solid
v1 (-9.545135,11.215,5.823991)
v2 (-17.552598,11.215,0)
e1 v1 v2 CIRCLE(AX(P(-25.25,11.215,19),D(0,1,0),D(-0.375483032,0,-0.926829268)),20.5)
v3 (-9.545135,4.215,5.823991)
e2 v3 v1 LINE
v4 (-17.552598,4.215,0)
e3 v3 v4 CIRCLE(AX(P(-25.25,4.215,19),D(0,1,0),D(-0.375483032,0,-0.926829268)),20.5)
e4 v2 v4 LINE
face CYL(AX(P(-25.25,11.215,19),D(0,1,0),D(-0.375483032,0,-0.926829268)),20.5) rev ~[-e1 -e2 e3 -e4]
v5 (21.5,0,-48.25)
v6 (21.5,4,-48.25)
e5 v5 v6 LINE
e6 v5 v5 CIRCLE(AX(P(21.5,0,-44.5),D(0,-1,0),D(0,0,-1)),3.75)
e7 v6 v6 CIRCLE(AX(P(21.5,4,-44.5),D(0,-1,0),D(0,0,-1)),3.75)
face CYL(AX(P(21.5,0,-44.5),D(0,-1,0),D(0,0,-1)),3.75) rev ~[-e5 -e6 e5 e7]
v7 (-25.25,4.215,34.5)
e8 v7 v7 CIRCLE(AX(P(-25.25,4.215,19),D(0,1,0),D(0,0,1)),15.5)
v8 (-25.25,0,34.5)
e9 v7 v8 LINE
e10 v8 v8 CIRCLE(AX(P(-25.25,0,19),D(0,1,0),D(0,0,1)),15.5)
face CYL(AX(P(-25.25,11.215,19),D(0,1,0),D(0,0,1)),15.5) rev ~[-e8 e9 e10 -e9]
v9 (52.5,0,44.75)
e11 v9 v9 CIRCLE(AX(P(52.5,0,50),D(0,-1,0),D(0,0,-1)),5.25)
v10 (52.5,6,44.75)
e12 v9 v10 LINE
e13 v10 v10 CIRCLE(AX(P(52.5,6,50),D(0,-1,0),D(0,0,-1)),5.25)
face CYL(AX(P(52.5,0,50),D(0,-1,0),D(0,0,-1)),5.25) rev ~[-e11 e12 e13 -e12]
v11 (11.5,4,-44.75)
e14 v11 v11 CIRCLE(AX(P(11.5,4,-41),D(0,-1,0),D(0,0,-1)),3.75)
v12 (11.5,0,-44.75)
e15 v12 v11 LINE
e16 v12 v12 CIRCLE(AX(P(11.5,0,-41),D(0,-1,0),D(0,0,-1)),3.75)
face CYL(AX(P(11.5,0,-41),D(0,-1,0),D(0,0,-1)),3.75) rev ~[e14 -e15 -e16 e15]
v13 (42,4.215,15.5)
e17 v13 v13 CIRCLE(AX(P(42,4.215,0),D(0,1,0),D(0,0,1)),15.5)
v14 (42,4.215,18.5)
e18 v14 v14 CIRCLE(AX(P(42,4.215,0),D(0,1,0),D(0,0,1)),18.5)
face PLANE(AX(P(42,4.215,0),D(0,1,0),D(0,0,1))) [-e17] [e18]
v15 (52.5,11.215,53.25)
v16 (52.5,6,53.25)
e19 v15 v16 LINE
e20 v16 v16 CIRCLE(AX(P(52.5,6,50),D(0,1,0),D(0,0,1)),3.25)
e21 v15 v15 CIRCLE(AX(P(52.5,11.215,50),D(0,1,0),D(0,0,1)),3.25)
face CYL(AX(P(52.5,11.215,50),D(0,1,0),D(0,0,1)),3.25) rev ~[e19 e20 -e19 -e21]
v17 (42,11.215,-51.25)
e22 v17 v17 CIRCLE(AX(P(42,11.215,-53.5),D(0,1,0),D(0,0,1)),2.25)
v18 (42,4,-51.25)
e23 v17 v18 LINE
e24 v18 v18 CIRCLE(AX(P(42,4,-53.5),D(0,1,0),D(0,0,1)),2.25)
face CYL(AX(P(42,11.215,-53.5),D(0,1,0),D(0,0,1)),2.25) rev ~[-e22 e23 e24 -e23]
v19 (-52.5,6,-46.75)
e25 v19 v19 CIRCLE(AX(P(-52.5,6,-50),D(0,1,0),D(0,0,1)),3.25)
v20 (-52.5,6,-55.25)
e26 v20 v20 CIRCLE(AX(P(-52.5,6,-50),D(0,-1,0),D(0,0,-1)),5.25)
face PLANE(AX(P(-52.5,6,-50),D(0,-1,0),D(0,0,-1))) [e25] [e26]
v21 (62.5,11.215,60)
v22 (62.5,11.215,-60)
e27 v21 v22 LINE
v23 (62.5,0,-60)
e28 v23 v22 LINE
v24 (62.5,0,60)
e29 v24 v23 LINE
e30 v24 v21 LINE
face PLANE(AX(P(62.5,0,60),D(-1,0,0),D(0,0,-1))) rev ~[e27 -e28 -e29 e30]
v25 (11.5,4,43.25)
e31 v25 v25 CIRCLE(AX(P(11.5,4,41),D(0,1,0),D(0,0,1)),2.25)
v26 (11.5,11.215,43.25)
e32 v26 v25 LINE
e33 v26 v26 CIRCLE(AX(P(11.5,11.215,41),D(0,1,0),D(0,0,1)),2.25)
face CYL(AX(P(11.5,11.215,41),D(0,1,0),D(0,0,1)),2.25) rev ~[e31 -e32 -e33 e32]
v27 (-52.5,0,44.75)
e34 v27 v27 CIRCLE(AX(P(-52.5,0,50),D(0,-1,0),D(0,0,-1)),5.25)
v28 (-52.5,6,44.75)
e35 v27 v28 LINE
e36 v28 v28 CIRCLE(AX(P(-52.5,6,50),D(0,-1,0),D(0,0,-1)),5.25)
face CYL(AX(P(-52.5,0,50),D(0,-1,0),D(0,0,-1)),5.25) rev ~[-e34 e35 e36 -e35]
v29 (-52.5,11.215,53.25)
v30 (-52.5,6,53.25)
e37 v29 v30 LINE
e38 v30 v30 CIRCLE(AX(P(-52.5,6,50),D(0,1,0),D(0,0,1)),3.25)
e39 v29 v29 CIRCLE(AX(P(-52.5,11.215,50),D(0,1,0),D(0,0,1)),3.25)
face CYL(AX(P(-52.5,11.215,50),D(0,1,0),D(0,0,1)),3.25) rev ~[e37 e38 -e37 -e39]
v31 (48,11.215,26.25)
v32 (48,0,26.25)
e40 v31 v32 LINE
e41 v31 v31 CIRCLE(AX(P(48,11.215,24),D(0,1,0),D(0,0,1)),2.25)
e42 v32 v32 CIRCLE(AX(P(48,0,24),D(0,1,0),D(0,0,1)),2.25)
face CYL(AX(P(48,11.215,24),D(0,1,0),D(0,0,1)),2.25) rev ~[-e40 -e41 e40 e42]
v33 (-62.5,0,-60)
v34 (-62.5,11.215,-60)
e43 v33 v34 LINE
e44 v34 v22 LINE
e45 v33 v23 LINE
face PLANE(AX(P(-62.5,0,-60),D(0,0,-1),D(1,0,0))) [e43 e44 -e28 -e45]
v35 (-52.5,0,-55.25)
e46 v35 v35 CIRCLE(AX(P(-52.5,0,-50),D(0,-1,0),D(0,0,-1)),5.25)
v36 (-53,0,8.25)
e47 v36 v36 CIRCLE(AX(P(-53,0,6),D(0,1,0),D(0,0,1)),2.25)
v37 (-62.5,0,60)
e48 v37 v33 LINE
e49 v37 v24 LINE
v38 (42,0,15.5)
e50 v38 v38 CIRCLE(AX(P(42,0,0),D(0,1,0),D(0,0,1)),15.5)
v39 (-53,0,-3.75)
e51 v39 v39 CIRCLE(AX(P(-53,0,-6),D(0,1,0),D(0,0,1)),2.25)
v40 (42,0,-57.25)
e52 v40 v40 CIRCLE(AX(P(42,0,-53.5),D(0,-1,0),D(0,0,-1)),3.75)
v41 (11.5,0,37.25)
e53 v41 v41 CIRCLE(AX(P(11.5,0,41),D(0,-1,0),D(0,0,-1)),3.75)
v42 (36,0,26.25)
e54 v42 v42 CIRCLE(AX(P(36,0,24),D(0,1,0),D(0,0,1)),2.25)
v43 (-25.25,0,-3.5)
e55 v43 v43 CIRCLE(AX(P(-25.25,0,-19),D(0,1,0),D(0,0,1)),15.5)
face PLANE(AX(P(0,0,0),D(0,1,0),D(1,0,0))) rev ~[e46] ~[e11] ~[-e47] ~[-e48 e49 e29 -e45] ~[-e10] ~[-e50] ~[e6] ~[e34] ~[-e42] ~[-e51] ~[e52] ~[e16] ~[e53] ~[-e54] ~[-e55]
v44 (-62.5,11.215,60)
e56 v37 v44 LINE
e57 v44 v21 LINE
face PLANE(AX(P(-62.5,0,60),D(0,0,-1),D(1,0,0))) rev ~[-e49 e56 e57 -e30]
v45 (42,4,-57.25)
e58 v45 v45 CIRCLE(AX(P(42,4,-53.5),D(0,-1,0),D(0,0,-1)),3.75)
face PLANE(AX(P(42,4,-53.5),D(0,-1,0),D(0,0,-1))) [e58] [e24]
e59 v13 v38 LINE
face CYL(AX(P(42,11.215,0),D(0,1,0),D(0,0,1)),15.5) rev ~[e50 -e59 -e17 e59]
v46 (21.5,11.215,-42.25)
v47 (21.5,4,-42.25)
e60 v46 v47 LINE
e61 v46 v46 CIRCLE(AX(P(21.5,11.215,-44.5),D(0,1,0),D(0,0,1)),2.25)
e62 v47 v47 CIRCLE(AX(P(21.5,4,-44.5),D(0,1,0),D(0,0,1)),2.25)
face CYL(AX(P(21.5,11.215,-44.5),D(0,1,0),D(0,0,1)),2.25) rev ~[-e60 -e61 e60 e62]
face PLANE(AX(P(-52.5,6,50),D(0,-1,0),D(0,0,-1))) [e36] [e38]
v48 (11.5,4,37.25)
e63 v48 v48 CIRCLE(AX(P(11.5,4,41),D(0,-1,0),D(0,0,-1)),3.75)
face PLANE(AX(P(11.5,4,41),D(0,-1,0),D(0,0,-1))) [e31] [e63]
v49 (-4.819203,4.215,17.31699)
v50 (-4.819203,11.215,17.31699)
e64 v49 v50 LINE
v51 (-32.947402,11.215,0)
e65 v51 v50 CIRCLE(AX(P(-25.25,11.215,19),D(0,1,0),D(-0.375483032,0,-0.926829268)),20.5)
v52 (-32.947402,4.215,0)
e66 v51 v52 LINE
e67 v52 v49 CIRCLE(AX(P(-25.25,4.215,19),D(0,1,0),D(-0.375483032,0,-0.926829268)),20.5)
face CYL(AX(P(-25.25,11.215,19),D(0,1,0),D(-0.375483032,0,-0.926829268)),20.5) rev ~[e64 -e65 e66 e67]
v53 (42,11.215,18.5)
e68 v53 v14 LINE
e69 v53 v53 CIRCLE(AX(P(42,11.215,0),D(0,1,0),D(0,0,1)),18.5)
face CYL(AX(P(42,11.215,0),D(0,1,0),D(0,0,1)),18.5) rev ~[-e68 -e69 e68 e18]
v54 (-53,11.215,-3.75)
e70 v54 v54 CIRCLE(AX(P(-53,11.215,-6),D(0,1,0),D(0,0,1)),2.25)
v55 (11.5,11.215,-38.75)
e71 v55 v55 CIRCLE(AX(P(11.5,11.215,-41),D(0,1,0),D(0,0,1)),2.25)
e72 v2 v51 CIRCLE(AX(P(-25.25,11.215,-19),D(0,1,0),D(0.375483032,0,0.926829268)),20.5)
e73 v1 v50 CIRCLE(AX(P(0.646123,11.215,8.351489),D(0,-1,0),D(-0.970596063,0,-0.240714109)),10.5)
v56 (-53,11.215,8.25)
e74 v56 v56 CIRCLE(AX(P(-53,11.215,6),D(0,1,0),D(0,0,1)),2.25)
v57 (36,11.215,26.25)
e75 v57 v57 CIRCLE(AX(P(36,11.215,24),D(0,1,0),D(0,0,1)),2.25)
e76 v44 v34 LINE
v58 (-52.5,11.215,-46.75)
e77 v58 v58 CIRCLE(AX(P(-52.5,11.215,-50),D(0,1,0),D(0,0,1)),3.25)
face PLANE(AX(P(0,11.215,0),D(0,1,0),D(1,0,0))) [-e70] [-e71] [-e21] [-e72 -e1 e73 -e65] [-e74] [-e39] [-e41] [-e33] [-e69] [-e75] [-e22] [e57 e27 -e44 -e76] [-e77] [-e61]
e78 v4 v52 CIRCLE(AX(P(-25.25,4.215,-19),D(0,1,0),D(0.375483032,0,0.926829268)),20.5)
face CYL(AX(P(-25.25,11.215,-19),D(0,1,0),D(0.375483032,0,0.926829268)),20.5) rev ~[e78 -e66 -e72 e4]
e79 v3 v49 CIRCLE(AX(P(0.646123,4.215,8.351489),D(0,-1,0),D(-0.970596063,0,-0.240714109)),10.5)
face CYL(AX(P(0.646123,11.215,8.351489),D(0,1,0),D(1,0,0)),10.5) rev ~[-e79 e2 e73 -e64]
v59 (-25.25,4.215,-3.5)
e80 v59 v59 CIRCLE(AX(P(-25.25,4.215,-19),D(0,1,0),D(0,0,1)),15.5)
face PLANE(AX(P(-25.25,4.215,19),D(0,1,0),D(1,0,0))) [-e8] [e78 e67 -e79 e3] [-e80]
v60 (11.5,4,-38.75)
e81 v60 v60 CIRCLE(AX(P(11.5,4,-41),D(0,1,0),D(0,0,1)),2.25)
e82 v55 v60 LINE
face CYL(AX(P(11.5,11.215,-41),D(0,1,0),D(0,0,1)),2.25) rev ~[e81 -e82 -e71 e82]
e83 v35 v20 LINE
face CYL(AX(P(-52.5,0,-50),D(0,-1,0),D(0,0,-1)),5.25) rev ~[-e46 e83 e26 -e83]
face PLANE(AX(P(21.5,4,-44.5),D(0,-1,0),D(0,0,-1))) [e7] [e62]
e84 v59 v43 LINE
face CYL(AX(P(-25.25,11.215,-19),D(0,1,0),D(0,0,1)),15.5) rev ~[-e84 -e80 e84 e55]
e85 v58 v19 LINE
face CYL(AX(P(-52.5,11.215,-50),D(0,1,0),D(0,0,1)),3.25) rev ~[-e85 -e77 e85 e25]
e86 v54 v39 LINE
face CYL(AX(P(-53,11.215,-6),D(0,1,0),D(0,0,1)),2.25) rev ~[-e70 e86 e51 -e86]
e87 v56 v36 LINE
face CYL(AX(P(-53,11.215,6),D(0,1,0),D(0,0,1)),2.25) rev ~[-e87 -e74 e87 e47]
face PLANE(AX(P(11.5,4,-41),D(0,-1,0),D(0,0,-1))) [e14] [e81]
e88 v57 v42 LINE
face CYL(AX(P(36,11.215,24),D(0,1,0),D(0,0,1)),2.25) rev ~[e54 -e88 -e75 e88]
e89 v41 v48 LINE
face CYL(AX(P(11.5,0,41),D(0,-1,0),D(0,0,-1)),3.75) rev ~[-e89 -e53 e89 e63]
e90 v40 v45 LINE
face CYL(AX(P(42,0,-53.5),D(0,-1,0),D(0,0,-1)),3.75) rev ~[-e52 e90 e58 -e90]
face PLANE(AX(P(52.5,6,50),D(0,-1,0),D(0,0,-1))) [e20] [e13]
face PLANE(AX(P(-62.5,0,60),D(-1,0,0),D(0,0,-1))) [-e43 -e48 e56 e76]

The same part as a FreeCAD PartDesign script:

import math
import FreeCAD as App
import Part
import Sketcher
from FreeCAD import Vector
Q = App.Units.Quantity


def add_polygon(sketch, points):
    """Adds a closed chain of lines whose ends are joined by coincident constraints."""
    first, n = sketch.GeometryCount, len(points)
    for a, b in zip(points, points[1:] + points[:1]):
        sketch.addGeometry(Part.LineSegment(App.Vector(*a, 0), App.Vector(*b, 0)), False)
    for i in range(n):
        sketch.addConstraint(Sketcher.Constraint("Coincident", first + i, 2, first + (i + 1) % n, 1))

doc = App.newDocument("Part")
body = doc.addObject("PartDesign::Body", "Body")

sketch1 = body.newObject("Sketcher::SketchObject", "Sketch")
sketch1.AttachmentSupport = (doc.getObject("XZ_Plane"), [""])
sketch1.MapMode = "FlatFace"
add_polygon(sketch1, [(-62, -60), (-62, 60), (62, 60), (62, -60)])
sketch1.addConstraint([
    Sketcher.Constraint("Vertical", 0),
    Sketcher.Constraint("Horizontal", 1),
    Sketcher.Constraint("Vertical", 2),
    Sketcher.Constraint("Horizontal", 3),
    Sketcher.Constraint("Symmetric", 0, 2, 2, 2, -1, 1),
    Sketcher.Constraint("DistanceX", 1, 1, 1, 2, Q("125 mm")),
    Sketcher.Constraint("DistanceY", 0, 1, 0, 2, Q("120 mm")),
])
pad1 = body.newObject("PartDesign::Pad", "Pad")
pad1.Profile = sketch1
pad1.Length = 11.215
pad1.Reversed = True

sketch2 = body.newObject("Sketcher::SketchObject", "Sketch001")
sketch2.AttachmentSupport = (doc.getObject("XZ_Plane"), [""])
sketch2.MapMode = "FlatFace"
sketch2.AttachmentOffset = App.Placement(Vector(0, 0, -11.215), App.Rotation())
sketch2.addGeometry([
    Part.ArcOfCircle(Part.Circle(Vector(-25, -19, 0), Vector(0, 0, 1), 20), math.radians(112), math.radians(428)),
    Part.ArcOfCircle(Part.Circle(Vector(-25, 19, 0), Vector(0, 0, 1), 20), math.radians(-68), math.radians(248)),
], False)
sketch2.addConstraint([
    Sketcher.Constraint("Coincident", 0, 1, 1, 2),
    Sketcher.Constraint("Coincident", 1, 1, 0, 2),
    Sketcher.Constraint("Equal", 0, 1),
    Sketcher.Constraint("Symmetric", 0, 3, 1, 3, -1),
    Sketcher.Constraint("Radius", 0, Q("20.5 mm")),
    Sketcher.Constraint("DistanceY", 0, 3, -1, 1, Q("19 mm")),
    Sketcher.Constraint("DistanceX", 0, 3, -1, 1, Q("25.25 mm")),
])
pocket1 = body.newObject("PartDesign::Pocket", "Pocket")
pocket1.Profile = sketch2
pocket1.Length = 7
pocket1.Reversed = True

sketch3 = body.newObject("Sketcher::SketchObject", "Sketch002")
sketch3.AttachmentSupport = (doc.getObject("XZ_Plane"), [""])
sketch3.MapMode = "FlatFace"
sketch3.AttachmentOffset = App.Placement(Vector(0, 0, -11.215), App.Rotation())
sketch3.addGeometry(Part.Circle(Vector(1, 8, 0), Vector(0, 0, 1), 10), False)
sketch3.addConstraint([
    Sketcher.Constraint("Diameter", 0, Q("21 mm")),
    Sketcher.Constraint("DistanceY", -1, 1, 0, 3, Q("8.351489 mm")),
    Sketcher.Constraint("DistanceX", -1, 1, 0, 3, Q("0.646123 mm")),
])
pocket2 = body.newObject("PartDesign::Pocket", "Pocket001")
pocket2.Profile = sketch3
pocket2.Length = 7
pocket2.Reversed = True

sketch4 = body.newObject("Sketcher::SketchObject", "Sketch003")
sketch4.AttachmentSupport = (doc.getObject("XZ_Plane"), [""])
sketch4.MapMode = "FlatFace"
sketch4.AttachmentOffset = App.Placement(Vector(0, 0, -11.215), App.Rotation())
sketch4.addGeometry(Part.Circle(Vector(42, 0, 0), Vector(0, 0, 1), 18), False)
sketch4.addConstraint([
    Sketcher.Constraint("PointOnObject", 0, 3, -1),
    Sketcher.Constraint("Diameter", 0, Q("37 mm")),
    Sketcher.Constraint("DistanceX", -1, 1, 0, 3, Q("42 mm")),
])
pocket3 = body.newObject("PartDesign::Pocket", "Pocket002")
pocket3.Profile = sketch4
pocket3.Length = 7
pocket3.Reversed = True

sketch5 = body.newObject("Sketcher::SketchObject", "Sketch004")
sketch5.AttachmentSupport = (doc.getObject("XZ_Plane"), [""])
sketch5.MapMode = "FlatFace"
sketch5.AttachmentOffset = App.Placement(Vector(0, 0, -11.215), App.Rotation())
sketch5.addGeometry([
    Part.Circle(Vector(-25, -19, 0), Vector(0, 0, 1), 16),
    Part.Circle(Vector(-25, 19, 0), Vector(0, 0, 1), 16),
    Part.Circle(Vector(42, 0, 0), Vector(0, 0, 1), 16),
], False)
sketch5.addConstraint([
    Sketcher.Constraint("Equal", 0, 1),
    Sketcher.Constraint("Equal", 1, 2),
    Sketcher.Constraint("Symmetric", 0, 3, 1, 3, -1),
    Sketcher.Constraint("PointOnObject", 2, 3, -1),
    Sketcher.Constraint("Diameter", 0, Q("31 mm")),
    Sketcher.Constraint("DistanceY", 0, 3, -1, 1, Q("19 mm")),
    Sketcher.Constraint("DistanceX", -1, 1, 2, 3, Q("42 mm")),
    Sketcher.Constraint("DistanceX", 0, 3, -1, 1, Q("25.25 mm")),
])
pocket4 = body.newObject("PartDesign::Pocket", "Pocket003")
pocket4.Profile = sketch5
pocket4.Type = "ThroughAll"
pocket4.Reversed = True

sketch6 = body.newObject("Sketcher::SketchObject", "Sketch005")
sketch6.AttachmentSupport = (doc.getObject("XZ_Plane"), [""])
sketch6.MapMode = "FlatFace"
sketch6.AttachmentOffset = App.Placement(Vector(0, 0, -11.215), App.Rotation())
sketch6.addGeometry([
    Part.Circle(Vector(21.5, -44.5, 0), Vector(0, 0, 1), 2.2),
    Part.Circle(Vector(42, -53.5, 0), Vector(0, 0, 1), 2.2),
    Part.Circle(Vector(48, 24, 0), Vector(0, 0, 1), 2.2),
    Part.Circle(Vector(36, 24, 0), Vector(0, 0, 1), 2.2),
], False)
sketch6.addConstraint([
    Sketcher.Constraint("Equal", 0, 1),
    Sketcher.Constraint("Equal", 1, 2),
    Sketcher.Constraint("Equal", 2, 3),
    Sketcher.Constraint("Horizontal", 2, 3, 3, 3),
    Sketcher.Constraint("Diameter", 0, Q("4.5 mm")),
    Sketcher.Constraint("DistanceX", -1, 1, 1, 3, Q("42 mm")),
    Sketcher.Constraint("DistanceX", -1, 1, 2, 3, Q("48 mm")),
    Sketcher.Constraint("DistanceY", -1, 1, 2, 3, Q("24 mm")),
    Sketcher.Constraint("DistanceX", -1, 1, 3, 3, Q("36 mm")),
    Sketcher.Constraint("DistanceY", 1, 3, 0, 3, Q("9 mm")),
    Sketcher.Constraint("DistanceX", -1, 1, 0, 3, Q("21.5 mm")),
    Sketcher.Constraint("DistanceY", 0, 3, -1, 1, Q("44.5 mm")),
])
pocket5 = body.newObject("PartDesign::Pocket", "Pocket004")
pocket5.Profile = sketch6
pocket5.Type = "ThroughAll"
pocket5.Reversed = True

sketch7 = body.newObject("Sketcher::SketchObject", "Sketch006")
sketch7.AttachmentSupport = (doc.getObject("XZ_Plane"), [""])
sketch7.MapMode = "FlatFace"
sketch7.AttachmentOffset = App.Placement(Vector(0, 0, -11.215), App.Rotation())
sketch7.addGeometry([
    Part.Circle(Vector(11.5, -41, 0), Vector(0, 0, 1), 2.2),
    Part.Circle(Vector(11.5, 41, 0), Vector(0, 0, 1), 2.2),
    Part.Circle(Vector(-53, -6, 0), Vector(0, 0, 1), 2.2),
    Part.Circle(Vector(-53, 6, 0), Vector(0, 0, 1), 2.2),
], False)
sketch7.addConstraint([
    Sketcher.Constraint("Equal", 0, 1),
    Sketcher.Constraint("Equal", 1, 2),
    Sketcher.Constraint("Equal", 2, 3),
    Sketcher.Constraint("Symmetric", 0, 3, 1, 3, -1),
    Sketcher.Constraint("Symmetric", 2, 3, 3, 3, -1),
    Sketcher.Constraint("Diameter", 0, Q("4.5 mm")),
    Sketcher.Constraint("DistanceY", 0, 3, -1, 1, Q("41 mm")),
    Sketcher.Constraint("DistanceX", 2, 3, -1, 1, Q("53 mm")),
    Sketcher.Constraint("DistanceY", 2, 3, -1, 1, Q("6 mm")),
    Sketcher.Constraint("DistanceX", -1, 1, 0, 3, Q("11.5 mm")),
])
pocket6 = body.newObject("PartDesign::Pocket", "Pocket005")
pocket6.Profile = sketch7
pocket6.Type = "ThroughAll"
pocket6.Reversed = True

sketch8 = body.newObject("Sketcher::SketchObject", "Sketch007")
sketch8.AttachmentSupport = (doc.getObject("XZ_Plane"), [""])
sketch8.MapMode = "FlatFace"
sketch8.AttachmentOffset = App.Placement(Vector(0, 0, -11.215), App.Rotation())
sketch8.addGeometry([
    Part.Circle(Vector(-52.5, -50, 0), Vector(0, 0, 1), 3.2),
    Part.Circle(Vector(-52.5, 50, 0), Vector(0, 0, 1), 3.2),
    Part.Circle(Vector(52.5, 50, 0), Vector(0, 0, 1), 3.2),
], False)
sketch8.addConstraint([
    Sketcher.Constraint("Equal", 0, 1),
    Sketcher.Constraint("Equal", 1, 2),
    Sketcher.Constraint("Symmetric", 0, 3, 2, 3, -1, 1),
    Sketcher.Constraint("Symmetric", 1, 3, 2, 3, -2),
    Sketcher.Constraint("Diameter", 0, Q("6.5 mm")),
    Sketcher.Constraint("DistanceY", 0, 3, -1, 1, Q("50 mm")),
    Sketcher.Constraint("DistanceX", 1, 3, 2, 3, Q("105 mm")),
])
pocket7 = body.newObject("PartDesign::Pocket", "Pocket006")
pocket7.Profile = sketch8
pocket7.Type = "ThroughAll"
pocket7.Reversed = True

sketch9 = body.newObject("Sketcher::SketchObject", "Sketch008")
sketch9.AttachmentSupport = (doc.getObject("XZ_Plane"), [""])
sketch9.MapMode = "FlatFace"
sketch9.addGeometry([
    Part.Circle(Vector(11.5, 41, 0), Vector(0, 0, 1), 3.8),
    Part.Circle(Vector(11.5, -41, 0), Vector(0, 0, 1), 3.8),
    Part.Circle(Vector(21.5, -44.5, 0), Vector(0, 0, 1), 3.8),
    Part.Circle(Vector(42, -53.5, 0), Vector(0, 0, 1), 3.8),
], False)
sketch9.addConstraint([
    Sketcher.Constraint("Equal", 0, 1),
    Sketcher.Constraint("Equal", 1, 2),
    Sketcher.Constraint("Equal", 2, 3),
    Sketcher.Constraint("Symmetric", 0, 3, 1, 3, -1),
    Sketcher.Constraint("Diameter", 0, Q("7.5 mm")),
    Sketcher.Constraint("DistanceY", -1, 1, 0, 3, Q("41 mm")),
    Sketcher.Constraint("DistanceX", -1, 1, 3, 3, Q("42 mm")),
    Sketcher.Constraint("DistanceX", 1, 3, 2, 3, Q("10 mm")),
    Sketcher.Constraint("DistanceY", 3, 3, 2, 3, Q("9 mm")),
    Sketcher.Constraint("DistanceX", -1, 1, 0, 3, Q("11.5 mm")),
    Sketcher.Constraint("DistanceY", 2, 3, -1, 1, Q("44.5 mm")),
])
pocket8 = body.newObject("PartDesign::Pocket", "Pocket007")
pocket8.Profile = sketch9
pocket8.Length = 4

sketch10 = body.newObject("Sketcher::SketchObject", "Sketch009")
sketch10.AttachmentSupport = (doc.getObject("XZ_Plane"), [""])
sketch10.MapMode = "FlatFace"
sketch10.addGeometry([
    Part.Circle(Vector(-52, 50, 0), Vector(0, 0, 1), 5),
    Part.Circle(Vector(52, 50, 0), Vector(0, 0, 1), 5),
    Part.Circle(Vector(-52, -50, 0), Vector(0, 0, 1), 5),
], False)
sketch10.addConstraint([
    Sketcher.Constraint("Equal", 0, 1),
    Sketcher.Constraint("Equal", 1, 2),
    Sketcher.Constraint("Symmetric", 1, 3, 2, 3, -1, 1),
    Sketcher.Constraint("Symmetric", 0, 3, 1, 3, -2),
    Sketcher.Constraint("Diameter", 0, Q("10.5 mm")),
    Sketcher.Constraint("DistanceY", -1, 1, 0, 3, Q("50 mm")),
    Sketcher.Constraint("DistanceX", 0, 3, 1, 3, Q("105 mm")),
])
pocket9 = body.newObject("PartDesign::Pocket", "Pocket008")
pocket9.Profile = sketch10
pocket9.Length = 6

doc.recompute()
